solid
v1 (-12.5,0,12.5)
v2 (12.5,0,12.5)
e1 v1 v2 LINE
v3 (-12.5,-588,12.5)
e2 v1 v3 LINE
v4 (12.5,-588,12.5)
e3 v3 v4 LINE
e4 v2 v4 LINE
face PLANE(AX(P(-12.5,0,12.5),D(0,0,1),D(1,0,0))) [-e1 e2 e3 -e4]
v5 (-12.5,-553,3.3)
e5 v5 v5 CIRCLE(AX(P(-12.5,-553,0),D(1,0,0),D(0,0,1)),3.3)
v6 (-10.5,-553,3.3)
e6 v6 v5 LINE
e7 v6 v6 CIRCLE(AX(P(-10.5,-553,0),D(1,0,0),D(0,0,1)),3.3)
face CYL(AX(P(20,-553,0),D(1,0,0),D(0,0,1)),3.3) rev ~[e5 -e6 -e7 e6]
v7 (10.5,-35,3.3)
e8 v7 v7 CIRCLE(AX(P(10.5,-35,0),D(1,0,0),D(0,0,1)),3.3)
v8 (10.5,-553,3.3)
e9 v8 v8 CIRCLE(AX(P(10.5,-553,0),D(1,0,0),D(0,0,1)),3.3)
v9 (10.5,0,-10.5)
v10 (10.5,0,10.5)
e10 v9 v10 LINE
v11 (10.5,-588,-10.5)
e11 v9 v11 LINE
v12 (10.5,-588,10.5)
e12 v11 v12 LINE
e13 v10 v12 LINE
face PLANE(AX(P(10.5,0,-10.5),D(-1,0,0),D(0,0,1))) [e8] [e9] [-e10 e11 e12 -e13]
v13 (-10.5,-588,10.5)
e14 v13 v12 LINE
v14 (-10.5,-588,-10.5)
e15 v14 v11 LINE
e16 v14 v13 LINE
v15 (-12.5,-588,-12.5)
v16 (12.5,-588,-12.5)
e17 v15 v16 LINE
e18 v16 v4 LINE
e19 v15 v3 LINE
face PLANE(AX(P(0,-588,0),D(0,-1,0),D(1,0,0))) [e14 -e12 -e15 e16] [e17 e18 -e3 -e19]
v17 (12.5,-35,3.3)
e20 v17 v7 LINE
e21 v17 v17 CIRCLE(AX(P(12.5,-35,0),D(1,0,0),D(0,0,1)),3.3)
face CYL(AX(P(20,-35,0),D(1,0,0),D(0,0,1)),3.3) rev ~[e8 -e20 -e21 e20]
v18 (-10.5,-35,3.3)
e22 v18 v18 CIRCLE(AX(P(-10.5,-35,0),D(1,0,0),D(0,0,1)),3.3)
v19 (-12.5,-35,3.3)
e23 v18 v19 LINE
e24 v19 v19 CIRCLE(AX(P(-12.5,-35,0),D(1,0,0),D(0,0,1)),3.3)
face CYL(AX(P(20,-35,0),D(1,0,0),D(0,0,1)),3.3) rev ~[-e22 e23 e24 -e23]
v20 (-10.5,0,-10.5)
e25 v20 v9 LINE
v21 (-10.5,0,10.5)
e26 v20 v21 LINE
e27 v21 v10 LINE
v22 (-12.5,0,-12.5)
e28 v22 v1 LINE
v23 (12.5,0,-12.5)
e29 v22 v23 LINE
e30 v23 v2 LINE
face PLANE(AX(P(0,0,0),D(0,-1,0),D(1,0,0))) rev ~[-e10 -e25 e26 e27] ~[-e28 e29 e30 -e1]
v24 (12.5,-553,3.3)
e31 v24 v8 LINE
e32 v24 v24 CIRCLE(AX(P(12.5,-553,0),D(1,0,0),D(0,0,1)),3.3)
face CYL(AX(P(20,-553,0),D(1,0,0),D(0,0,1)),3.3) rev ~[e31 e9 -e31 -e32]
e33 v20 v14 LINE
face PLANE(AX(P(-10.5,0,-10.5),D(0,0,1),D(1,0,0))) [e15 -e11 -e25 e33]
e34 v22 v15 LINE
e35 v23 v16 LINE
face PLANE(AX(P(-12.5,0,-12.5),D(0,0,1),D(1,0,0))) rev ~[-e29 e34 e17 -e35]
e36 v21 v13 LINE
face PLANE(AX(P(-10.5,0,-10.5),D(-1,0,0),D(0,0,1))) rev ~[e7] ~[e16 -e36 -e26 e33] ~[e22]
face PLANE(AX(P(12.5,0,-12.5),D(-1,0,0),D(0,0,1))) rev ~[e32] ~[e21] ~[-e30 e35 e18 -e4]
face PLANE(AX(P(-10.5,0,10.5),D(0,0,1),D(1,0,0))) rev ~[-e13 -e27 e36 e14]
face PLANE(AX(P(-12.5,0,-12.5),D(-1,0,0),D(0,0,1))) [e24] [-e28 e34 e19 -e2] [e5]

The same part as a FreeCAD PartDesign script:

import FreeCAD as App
import Part
import Sketcher
Q = App.Units.Quantity

doc = App.newDocument("Part")
body = doc.addObject("PartDesign::Body", "Body")

# Sketch on XZ plane
sketch1 = body.newObject("Sketcher::SketchObject", "Sketch")
sketch1.AttachmentSupport = (doc.getObject("XZ_Plane"), [""])
sketch1.MapMode = "FlatFace"
sketch1.addGeometry([
    Part.LineSegment(App.Vector(-12, 12, 0), App.Vector(-12, -12, 0)),  # 0
    Part.LineSegment(App.Vector(-12, -12, 0), App.Vector(12, -12, 0)),  # 1
    Part.LineSegment(App.Vector(12, -12, 0), App.Vector(12, 12, 0)),  # 2
    Part.LineSegment(App.Vector(12, 12, 0), App.Vector(-12, 12, 0)),  # 3
    Part.LineSegment(App.Vector(10, -10, 0), App.Vector(-10, -10, 0)),  # 4
    Part.LineSegment(App.Vector(-10, -10, 0), App.Vector(-10, 10, 0)),  # 5
    Part.LineSegment(App.Vector(-10, 10, 0), App.Vector(10, 10, 0)),  # 6
    Part.LineSegment(App.Vector(10, 10, 0), App.Vector(10, -10, 0)),  # 7
], False)
sketch1.addConstraint([
    Sketcher.Constraint("Coincident", 0, 2, 1, 1),
    Sketcher.Constraint("Coincident", 1, 2, 2, 1),
    Sketcher.Constraint("Coincident", 2, 2, 3, 1),
    Sketcher.Constraint("Coincident", 3, 2, 0, 1),
    Sketcher.Constraint("Coincident", 4, 2, 5, 1),
    Sketcher.Constraint("Coincident", 5, 2, 6, 1),
    Sketcher.Constraint("Coincident", 6, 2, 7, 1),
    Sketcher.Constraint("Coincident", 7, 2, 4, 1),
    Sketcher.Constraint("Vertical", 0),
    Sketcher.Constraint("Horizontal", 1),
    Sketcher.Constraint("Vertical", 2),
    Sketcher.Constraint("Horizontal", 3),
    Sketcher.Constraint("Horizontal", 4),
    Sketcher.Constraint("Vertical", 5),
    Sketcher.Constraint("Horizontal", 6),
    Sketcher.Constraint("Vertical", 7),
    Sketcher.Constraint("Symmetric", 0, 2, 2, 2, -1, 1),
    Sketcher.Constraint("Symmetric", 4, 2, 6, 2, -1, 1),
    Sketcher.Constraint("Equal", 3, 0),
    Sketcher.Constraint("Equal", 6, 5),
    Sketcher.Constraint("DistanceX", 1, 1, 1, 2, Q("25 mm")),
    Sketcher.Constraint("DistanceX", 4, 2, 4, 1, Q("21 mm")),
])
pad1 = body.newObject("PartDesign::Pad", "Pad")
pad1.Profile = sketch1
pad1.Length = 588

# Sketch on YZ plane
sketch2 = body.newObject("Sketcher::SketchObject", "Sketch001")
sketch2.AttachmentSupport = (doc.getObject("YZ_Plane"), [""])
sketch2.MapMode = "FlatFace"
sketch2.AttachmentOffset = App.Placement(App.Vector(0, 0, 20), App.Rotation())
sketch2.addGeometry([
    Part.Circle(App.Vector(-35, 0, 0), App.Vector(0, 0, 1), 3.3),
    Part.Circle(App.Vector(-553, 0, 0), App.Vector(0, 0, 1), 3.3),
], False)
sketch2.addConstraint([
    Sketcher.Constraint("Equal", 0, 1),
    Sketcher.Constraint("PointOnObject", 0, 3, -1),
    Sketcher.Constraint("PointOnObject", 1, 3, -1),
    Sketcher.Constraint("Diameter", 0, Q("6.6 mm")),
    Sketcher.Constraint("DistanceX", 0, 3, -1, 1, Q("35 mm")),
    Sketcher.Constraint("DistanceX", 1, 3, -1, 1, Q("553 mm")),
])
pocket1 = body.newObject("PartDesign::Pocket", "Pocket")
pocket1.Profile = sketch2
pocket1.Type = "ThroughAll"

doc.recompute()
